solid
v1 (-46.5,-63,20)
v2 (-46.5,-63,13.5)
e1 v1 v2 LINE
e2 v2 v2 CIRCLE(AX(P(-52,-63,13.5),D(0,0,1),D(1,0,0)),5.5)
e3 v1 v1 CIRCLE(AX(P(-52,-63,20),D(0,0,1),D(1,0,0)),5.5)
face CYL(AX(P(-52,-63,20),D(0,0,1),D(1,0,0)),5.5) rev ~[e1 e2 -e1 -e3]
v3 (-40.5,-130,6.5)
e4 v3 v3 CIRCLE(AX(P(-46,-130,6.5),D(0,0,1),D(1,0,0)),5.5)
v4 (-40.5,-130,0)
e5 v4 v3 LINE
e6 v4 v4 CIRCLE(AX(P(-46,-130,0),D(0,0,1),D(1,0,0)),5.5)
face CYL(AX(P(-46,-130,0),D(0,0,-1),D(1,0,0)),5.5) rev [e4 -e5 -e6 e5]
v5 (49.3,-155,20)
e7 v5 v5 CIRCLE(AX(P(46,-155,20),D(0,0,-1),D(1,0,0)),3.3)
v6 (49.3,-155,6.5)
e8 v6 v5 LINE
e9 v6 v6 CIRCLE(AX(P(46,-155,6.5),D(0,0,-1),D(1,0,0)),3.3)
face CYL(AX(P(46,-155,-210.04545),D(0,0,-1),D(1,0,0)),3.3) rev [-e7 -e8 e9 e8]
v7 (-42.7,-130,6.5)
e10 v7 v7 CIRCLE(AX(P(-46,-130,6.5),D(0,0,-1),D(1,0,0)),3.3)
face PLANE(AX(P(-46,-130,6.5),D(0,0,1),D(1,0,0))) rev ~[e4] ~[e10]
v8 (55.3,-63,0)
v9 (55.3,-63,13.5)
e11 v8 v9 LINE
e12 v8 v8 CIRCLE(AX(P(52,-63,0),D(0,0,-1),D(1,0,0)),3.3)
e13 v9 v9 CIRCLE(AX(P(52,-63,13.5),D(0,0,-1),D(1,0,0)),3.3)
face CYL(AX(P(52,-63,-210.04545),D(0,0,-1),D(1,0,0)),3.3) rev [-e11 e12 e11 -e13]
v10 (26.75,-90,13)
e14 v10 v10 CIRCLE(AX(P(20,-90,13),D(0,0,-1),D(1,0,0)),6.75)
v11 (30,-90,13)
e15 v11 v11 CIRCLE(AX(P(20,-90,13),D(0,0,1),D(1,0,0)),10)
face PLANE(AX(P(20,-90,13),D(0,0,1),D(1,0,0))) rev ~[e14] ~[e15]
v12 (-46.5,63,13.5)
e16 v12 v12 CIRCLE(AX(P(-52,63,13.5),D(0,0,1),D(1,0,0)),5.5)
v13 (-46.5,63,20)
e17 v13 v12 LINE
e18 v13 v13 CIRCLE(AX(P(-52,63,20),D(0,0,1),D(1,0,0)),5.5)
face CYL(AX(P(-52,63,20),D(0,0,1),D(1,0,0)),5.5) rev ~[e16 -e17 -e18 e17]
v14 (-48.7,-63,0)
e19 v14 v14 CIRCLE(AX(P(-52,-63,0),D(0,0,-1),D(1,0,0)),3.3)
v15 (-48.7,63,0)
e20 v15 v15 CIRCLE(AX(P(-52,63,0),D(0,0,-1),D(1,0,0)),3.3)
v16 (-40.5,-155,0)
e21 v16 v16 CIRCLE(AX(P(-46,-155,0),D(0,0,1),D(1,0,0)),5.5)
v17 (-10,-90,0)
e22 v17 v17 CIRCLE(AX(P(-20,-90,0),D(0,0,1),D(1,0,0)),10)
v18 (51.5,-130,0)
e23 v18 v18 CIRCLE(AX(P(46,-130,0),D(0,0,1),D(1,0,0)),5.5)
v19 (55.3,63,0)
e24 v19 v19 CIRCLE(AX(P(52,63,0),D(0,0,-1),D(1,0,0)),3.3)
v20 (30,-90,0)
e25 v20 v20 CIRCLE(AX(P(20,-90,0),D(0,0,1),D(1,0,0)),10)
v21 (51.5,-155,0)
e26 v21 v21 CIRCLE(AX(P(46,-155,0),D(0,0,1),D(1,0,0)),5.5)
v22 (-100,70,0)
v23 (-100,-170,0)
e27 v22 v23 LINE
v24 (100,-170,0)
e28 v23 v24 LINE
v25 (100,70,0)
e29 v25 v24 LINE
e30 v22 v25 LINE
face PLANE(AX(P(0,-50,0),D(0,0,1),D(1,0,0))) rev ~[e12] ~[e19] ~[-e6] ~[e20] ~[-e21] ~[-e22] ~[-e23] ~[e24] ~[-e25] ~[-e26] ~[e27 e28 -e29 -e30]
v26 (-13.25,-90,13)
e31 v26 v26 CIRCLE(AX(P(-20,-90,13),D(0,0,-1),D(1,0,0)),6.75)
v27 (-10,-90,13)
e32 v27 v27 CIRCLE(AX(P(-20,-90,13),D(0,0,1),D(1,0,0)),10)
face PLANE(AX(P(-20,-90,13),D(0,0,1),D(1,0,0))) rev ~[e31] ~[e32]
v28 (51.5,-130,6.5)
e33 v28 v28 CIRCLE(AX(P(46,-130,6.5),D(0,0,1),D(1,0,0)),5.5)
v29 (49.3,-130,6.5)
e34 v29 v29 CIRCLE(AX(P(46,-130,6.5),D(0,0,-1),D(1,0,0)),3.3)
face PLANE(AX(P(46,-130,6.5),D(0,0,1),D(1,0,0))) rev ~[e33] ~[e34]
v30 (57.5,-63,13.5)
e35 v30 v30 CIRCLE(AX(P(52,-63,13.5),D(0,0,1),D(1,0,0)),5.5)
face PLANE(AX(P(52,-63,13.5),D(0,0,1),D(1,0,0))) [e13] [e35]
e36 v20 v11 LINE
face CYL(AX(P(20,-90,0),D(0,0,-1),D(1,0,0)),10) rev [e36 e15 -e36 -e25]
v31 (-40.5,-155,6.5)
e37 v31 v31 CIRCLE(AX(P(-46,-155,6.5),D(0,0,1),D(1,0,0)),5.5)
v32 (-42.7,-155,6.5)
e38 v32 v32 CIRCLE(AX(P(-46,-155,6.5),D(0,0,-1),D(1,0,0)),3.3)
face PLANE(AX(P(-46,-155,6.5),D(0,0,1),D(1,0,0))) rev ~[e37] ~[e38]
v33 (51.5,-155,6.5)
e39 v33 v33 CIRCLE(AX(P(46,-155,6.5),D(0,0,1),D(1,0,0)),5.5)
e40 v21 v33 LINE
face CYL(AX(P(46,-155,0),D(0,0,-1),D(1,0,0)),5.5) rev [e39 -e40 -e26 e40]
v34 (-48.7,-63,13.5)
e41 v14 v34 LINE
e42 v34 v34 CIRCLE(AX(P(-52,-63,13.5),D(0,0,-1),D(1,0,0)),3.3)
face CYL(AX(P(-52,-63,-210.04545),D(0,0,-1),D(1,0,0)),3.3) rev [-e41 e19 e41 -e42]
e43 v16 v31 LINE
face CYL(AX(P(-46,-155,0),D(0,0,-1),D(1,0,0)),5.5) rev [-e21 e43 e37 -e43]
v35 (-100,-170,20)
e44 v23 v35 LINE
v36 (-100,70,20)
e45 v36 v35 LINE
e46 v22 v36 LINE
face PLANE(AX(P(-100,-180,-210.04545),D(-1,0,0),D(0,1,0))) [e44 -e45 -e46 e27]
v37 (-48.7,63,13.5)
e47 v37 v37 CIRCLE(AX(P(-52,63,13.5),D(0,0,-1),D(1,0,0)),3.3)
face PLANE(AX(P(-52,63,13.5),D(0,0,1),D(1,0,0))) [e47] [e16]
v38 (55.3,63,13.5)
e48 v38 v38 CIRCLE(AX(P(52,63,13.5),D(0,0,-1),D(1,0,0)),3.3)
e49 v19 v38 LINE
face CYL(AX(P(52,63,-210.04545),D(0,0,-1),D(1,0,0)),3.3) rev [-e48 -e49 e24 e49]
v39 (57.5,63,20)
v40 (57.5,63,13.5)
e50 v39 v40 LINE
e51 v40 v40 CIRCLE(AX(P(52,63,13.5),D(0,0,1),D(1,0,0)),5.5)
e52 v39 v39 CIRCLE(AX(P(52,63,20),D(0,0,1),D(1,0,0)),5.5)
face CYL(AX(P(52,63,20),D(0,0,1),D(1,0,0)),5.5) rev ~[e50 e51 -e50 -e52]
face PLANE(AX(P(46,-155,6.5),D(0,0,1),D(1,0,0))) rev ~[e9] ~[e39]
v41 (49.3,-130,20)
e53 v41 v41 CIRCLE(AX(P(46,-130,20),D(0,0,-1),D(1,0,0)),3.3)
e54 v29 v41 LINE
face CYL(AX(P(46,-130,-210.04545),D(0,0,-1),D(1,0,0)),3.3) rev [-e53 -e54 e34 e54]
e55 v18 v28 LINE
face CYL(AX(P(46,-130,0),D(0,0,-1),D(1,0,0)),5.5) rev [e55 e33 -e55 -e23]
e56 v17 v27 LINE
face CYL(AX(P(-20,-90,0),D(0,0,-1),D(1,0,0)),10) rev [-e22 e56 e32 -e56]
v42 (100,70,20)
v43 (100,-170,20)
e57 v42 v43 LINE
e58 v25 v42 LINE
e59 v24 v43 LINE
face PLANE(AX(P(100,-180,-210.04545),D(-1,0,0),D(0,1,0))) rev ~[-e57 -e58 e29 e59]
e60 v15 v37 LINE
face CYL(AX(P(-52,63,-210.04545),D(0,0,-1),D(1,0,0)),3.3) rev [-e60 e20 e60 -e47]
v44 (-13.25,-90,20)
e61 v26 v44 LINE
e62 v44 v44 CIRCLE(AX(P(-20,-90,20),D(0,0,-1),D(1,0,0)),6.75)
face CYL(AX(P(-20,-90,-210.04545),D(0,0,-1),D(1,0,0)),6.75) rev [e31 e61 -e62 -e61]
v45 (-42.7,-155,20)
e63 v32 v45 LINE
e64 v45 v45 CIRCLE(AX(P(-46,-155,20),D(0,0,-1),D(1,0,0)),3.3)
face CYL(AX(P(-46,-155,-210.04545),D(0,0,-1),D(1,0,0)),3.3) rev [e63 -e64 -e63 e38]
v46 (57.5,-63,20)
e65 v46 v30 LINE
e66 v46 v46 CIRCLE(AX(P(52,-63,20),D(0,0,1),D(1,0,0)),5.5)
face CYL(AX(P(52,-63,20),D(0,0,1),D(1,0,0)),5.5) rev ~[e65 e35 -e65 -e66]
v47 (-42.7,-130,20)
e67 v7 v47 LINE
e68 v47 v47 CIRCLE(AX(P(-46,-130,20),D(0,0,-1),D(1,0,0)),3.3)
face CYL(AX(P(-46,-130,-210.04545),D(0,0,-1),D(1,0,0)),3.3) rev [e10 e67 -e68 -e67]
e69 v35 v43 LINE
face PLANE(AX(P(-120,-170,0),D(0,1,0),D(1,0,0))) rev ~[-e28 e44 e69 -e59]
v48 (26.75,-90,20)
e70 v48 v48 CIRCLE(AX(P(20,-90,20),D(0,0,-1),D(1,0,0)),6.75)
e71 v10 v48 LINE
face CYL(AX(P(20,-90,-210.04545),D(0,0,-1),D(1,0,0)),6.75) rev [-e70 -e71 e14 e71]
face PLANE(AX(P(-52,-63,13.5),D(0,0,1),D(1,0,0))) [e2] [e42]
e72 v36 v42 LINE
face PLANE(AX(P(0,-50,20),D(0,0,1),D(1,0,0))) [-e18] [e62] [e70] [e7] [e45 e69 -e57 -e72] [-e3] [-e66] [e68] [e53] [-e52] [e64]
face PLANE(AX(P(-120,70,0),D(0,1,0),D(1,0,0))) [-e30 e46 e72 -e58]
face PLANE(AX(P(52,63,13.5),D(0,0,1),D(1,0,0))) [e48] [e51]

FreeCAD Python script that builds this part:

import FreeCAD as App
import Part
import Sketcher

V = App.Vector
Q = App.Units.Quantity

doc = App.newDocument("Part")
body = doc.addObject("PartDesign::Body", "Body")

# Sketch on XY plane
sketch1 = body.newObject("Sketcher::SketchObject", "Sketch")
sketch1.AttachmentSupport = (doc.getObject("XY_Plane"), [""])
sketch1.MapMode = "FlatFace"
sketch1.addGeometry([
    Part.LineSegment(V(-120, 70, 0), V(-120, -170, 0)),
    Part.LineSegment(V(-120, -170, 0), V(120, -170, 0)),
    Part.LineSegment(V(120, -170, 0), V(120, 70, 0)),
    Part.LineSegment(V(120, 70, 0), V(-120, 70, 0)),
], False)
sketch1.addConstraint([
    Sketcher.Constraint("Coincident", 0, 2, 1, 1),
    Sketcher.Constraint("Coincident", 1, 2, 2, 1),
    Sketcher.Constraint("Coincident", 2, 2, 3, 1),
    Sketcher.Constraint("Coincident", 3, 2, 0, 1),
    Sketcher.Constraint("Vertical", 0),
    Sketcher.Constraint("Horizontal", 1),
    Sketcher.Constraint("Vertical", 2),
    Sketcher.Constraint("Horizontal", 3),
    Sketcher.Constraint("Equal", 3, 0),
    Sketcher.Constraint("DistanceX", 1, 1, 1, 2, Q("240 mm")),
    Sketcher.Constraint("DistanceX", 0, 2, -1, 1, Q("120 mm")),
    Sketcher.Constraint("DistanceY", 0, 2, -1, 1, Q("170 mm")),
])
pad1 = body.newObject("PartDesign::Pad", "Pad")
pad1.Profile = sketch1
pad1.Length = 20

# Sketch on XY plane
sketch2 = body.newObject("Sketcher::SketchObject", "Sketch001")
sketch2.AttachmentSupport = (doc.getObject("XY_Plane"), [""])
sketch2.MapMode = "FlatFace"
sketch2.addGeometry([
    Part.Circle(V(-52, -63, 0), V(0, 0, 1), 3.3),
    Part.Circle(V(-52, 63, 0), V(0, 0, 1), 3.3),
    Part.Circle(V(52, -63, 0), V(0, 0, 1), 3.3),
    Part.Circle(V(52, 63, 0), V(0, 0, 1), 3.3),
], False)
sketch2.addConstraint([
    Sketcher.Constraint("Equal", 0, 1),
    Sketcher.Constraint("Equal", 1, 2),
    Sketcher.Constraint("Equal", 2, 3),
    Sketcher.Constraint("Symmetric", 1, 3, 2, 3, -1, 1),
    Sketcher.Constraint("Symmetric", 0, 3, 3, 3, -1, 1),
    Sketcher.Constraint("Symmetric", 0, 3, 2, 3, -2),
    Sketcher.Constraint("Diameter", 0, Q("6.6 mm")),
    Sketcher.Constraint("DistanceX", 0, 3, -1, 1, Q("52 mm")),
    Sketcher.Constraint("DistanceY", 0, 3, -1, 1, Q("63 mm")),
])
pocket1 = body.newObject("PartDesign::Pocket", "Pocket")
pocket1.Profile = sketch2
pocket1.Type = "ThroughAll"
pocket1.Midplane = True

# Sketch on XY plane
sketch3 = body.newObject("Sketcher::SketchObject", "Sketch002")
sketch3.AttachmentSupport = (doc.getObject("XY_Plane"), [""])
sketch3.MapMode = "FlatFace"
sketch3.AttachmentOffset = App.Placement(V(0, 0, 20), App.Rotation())
sketch3.addGeometry([
    Part.Circle(V(-52, -63, 0), V(0, 0, 1), 5.5),
    Part.Circle(V(-52, 63, 0), V(0, 0, 1), 5.5),
    Part.Circle(V(52, -63, 0), V(0, 0, 1), 5.5),
    Part.Circle(V(52, 63, 0), V(0, 0, 1), 5.5),
], False)
sketch3.addConstraint([
    Sketcher.Constraint("Equal", 0, 1),
    Sketcher.Constraint("Equal", 1, 2),
    Sketcher.Constraint("Equal", 2, 3),
    Sketcher.Constraint("Symmetric", 1, 3, 2, 3, -1, 1),
    Sketcher.Constraint("Symmetric", 0, 3, 3, 3, -1, 1),
    Sketcher.Constraint("Symmetric", 0, 3, 2, 3, -2),
    Sketcher.Constraint("Diameter", 0, Q("11 mm")),
    Sketcher.Constraint("DistanceX", 0, 3, -1, 1, Q("52 mm")),
    Sketcher.Constraint("DistanceY", 0, 3, -1, 1, Q("63 mm")),
])
pocket2 = body.newObject("PartDesign::Pocket", "Pocket001")
pocket2.Profile = sketch3
pocket2.Length = 6.5

# Sketch on XY plane
sketch4 = body.newObject("Sketcher::SketchObject", "Sketch003")
sketch4.AttachmentSupport = (doc.getObject("XY_Plane"), [""])
sketch4.MapMode = "FlatFace"
sketch4.addGeometry([
    Part.Circle(V(-20, -90, 0), V(0, 0, 1), 6.75),
    Part.Circle(V(20, -90, 0), V(0, 0, 1), 6.75),
], False)
sketch4.addConstraint([
    Sketcher.Constraint("Equal", 0, 1),
    Sketcher.Constraint("Symmetric", 0, 3, 1, 3, -2),
    Sketcher.Constraint("Diameter", 0, Q("13.5 mm")),
    Sketcher.Constraint("DistanceX", 0, 3, -1, 1, Q("20 mm")),
    Sketcher.Constraint("DistanceY", 0, 3, -1, 1, Q("90 mm")),
])
pocket3 = body.newObject("PartDesign::Pocket", "Pocket002")
pocket3.Profile = sketch4
pocket3.Type = "ThroughAll"
pocket3.Midplane = True

# Sketch on XY plane
sketch5 = body.newObject("Sketcher::SketchObject", "Sketch004")
sketch5.AttachmentSupport = (doc.getObject("XY_Plane"), [""])
sketch5.MapMode = "FlatFace"
sketch5.addGeometry([
    Part.Circle(V(-20, -90, 0), V(0, 0, 1), 10),
    Part.Circle(V(20, -90, 0), V(0, 0, 1), 10),
], False)
sketch5.addConstraint([
    Sketcher.Constraint("Equal", 0, 1),
    Sketcher.Constraint("Symmetric", 0, 3, 1, 3, -2),
    Sketcher.Constraint("Diameter", 0, Q("20 mm")),
    Sketcher.Constraint("DistanceX", 0, 3, -1, 1, Q("20 mm")),
    Sketcher.Constraint("DistanceY", 0, 3, -1, 1, Q("90 mm")),
])
pocket4 = body.newObject("PartDesign::Pocket", "Pocket003")
pocket4.Profile = sketch5
pocket4.Length = 13
pocket4.Reversed = True

# Sketch on XY plane
sketch6 = body.newObject("Sketcher::SketchObject", "Sketch005")
sketch6.AttachmentSupport = (doc.getObject("XY_Plane"), [""])
sketch6.MapMode = "FlatFace"
sketch6.addGeometry([
    Part.Circle(V(-46, -130, 0), V(0, 0, 1), 3.3),
    Part.Circle(V(-46, -155, 0), V(0, 0, 1), 3.3),
    Part.Circle(V(46, -130, 0), V(0, 0, 1), 3.3),
    Part.Circle(V(46, -155, 0), V(0, 0, 1), 3.3),
], False)
sketch6.addConstraint([
    Sketcher.Constraint("Equal", 0, 1),
    Sketcher.Constraint("Equal", 1, 2),
    Sketcher.Constraint("Equal", 2, 3),
    Sketcher.Constraint("Symmetric", 0, 3, 2, 3, -2),
    Sketcher.Constraint("Symmetric", 1, 3, 3, 3, -2),
    Sketcher.Constraint("Vertical", 0, 3, 1, 3),
    Sketcher.Constraint("Diameter", 0, Q("6.6 mm")),
    Sketcher.Constraint("DistanceX", 0, 3, -1, 1, Q("46 mm")),
    Sketcher.Constraint("DistanceY", 0, 3, -1, 1, Q("130 mm")),
    Sketcher.Constraint("DistanceY", 1, 3, -1, 1, Q("155 mm")),
])
pocket5 = body.newObject("PartDesign::Pocket", "Pocket004")
pocket5.Profile = sketch6
pocket5.Type = "ThroughAll"
pocket5.Midplane = True

# Sketch on XY plane
sketch7 = body.newObject("Sketcher::SketchObject", "Sketch006")
sketch7.AttachmentSupport = (doc.getObject("XY_Plane"), [""])
sketch7.MapMode = "FlatFace"
sketch7.addGeometry([
    Part.Circle(V(-46, -130, 0), V(0, 0, 1), 5.5),
    Part.Circle(V(-46, -155, 0), V(0, 0, 1), 5.5),
    Part.Circle(V(46, -130, 0), V(0, 0, 1), 5.5),
    Part.Circle(V(46, -155, 0), V(0, 0, 1), 5.5),
], False)
sketch7.addConstraint([
    Sketcher.Constraint("Equal", 0, 1),
    Sketcher.Constraint("Equal", 1, 2),
    Sketcher.Constraint("Equal", 2, 3),
    Sketcher.Constraint("Symmetric", 0, 3, 2, 3, -2),
    Sketcher.Constraint("Symmetric", 1, 3, 3, 3, -2),
    Sketcher.Constraint("Vertical", 0, 3, 1, 3),
    Sketcher.Constraint("Diameter", 0, Q("11 mm")),
    Sketcher.Constraint("DistanceX", 0, 3, -1, 1, Q("46 mm")),
    Sketcher.Constraint("DistanceY", 0, 3, -1, 1, Q("130 mm")),
    Sketcher.Constraint("DistanceY", 1, 3, -1, 1, Q("155 mm")),
])
pocket6 = body.newObject("PartDesign::Pocket", "Pocket005")
pocket6.Profile = sketch7
pocket6.Length = 6.5
pocket6.Reversed = True

# Sketch on XY plane
sketch8 = body.newObject("Sketcher::SketchObject", "Sketch007")
sketch8.AttachmentSupport = (doc.getObject("XY_Plane"), [""])
sketch8.MapMode = "FlatFace"
sketch8.addGeometry([
    Part.LineSegment(V(-130, 80, 0), V(-130, -180, 0)),  # 0
    Part.LineSegment(V(-130, -180, 0), V(-100, -180, 0)),  # 1
    Part.LineSegment(V(-100, -180, 0), V(-100, 80, 0)),  # 2
    Part.LineSegment(V(-100, 80, 0), V(-130, 80, 0)),  # 3
    Part.LineSegment(V(100, 80, 0), V(100, -180, 0)),  # 4
    Part.LineSegment(V(100, -180, 0), V(130, -180, 0)),  # 5
    Part.LineSegment(V(130, -180, 0), V(130, 80, 0)),  # 6
    Part.LineSegment(V(130, 80, 0), V(100, 80, 0)),  # 7
], False)
sketch8.addConstraint([
    Sketcher.Constraint("Coincident", 0, 2, 1, 1),
    Sketcher.Constraint("Coincident", 1, 2, 2, 1),
    Sketcher.Constraint("Coincident", 2, 2, 3, 1),
    Sketcher.Constraint("Coincident", 3, 2, 0, 1),
    Sketcher.Constraint("Coincident", 4, 2, 5, 1),
    Sketcher.Constraint("Coincident", 5, 2, 6, 1),
    Sketcher.Constraint("Coincident", 6, 2, 7, 1),
    Sketcher.Constraint("Coincident", 7, 2, 4, 1),
    Sketcher.Constraint("Vertical", 0),
    Sketcher.Constraint("Horizontal", 1),
    Sketcher.Constraint("Vertical", 2),
    Sketcher.Constraint("Horizontal", 3),
    Sketcher.Constraint("Vertical", 4),
    Sketcher.Constraint("Horizontal", 5),
    Sketcher.Constraint("Vertical", 6),
    Sketcher.Constraint("Horizontal", 7),
    Sketcher.Constraint("Symmetric", 1, 2, 4, 2, -2),
    Sketcher.Constraint("Symmetric", 3, 2, 6, 2, -2),
    Sketcher.Constraint("DistanceX", 1, 1, 1, 2, Q("30 mm")),
    Sketcher.Constraint("DistanceY", 0, 2, 0, 1, Q("260 mm")),
    Sketcher.Constraint("DistanceX", 0, 2, -1, 1, Q("130 mm")),
    Sketcher.Constraint("DistanceY", 0, 2, -1, 1, Q("180 mm")),
])
pocket7 = body.newObject("PartDesign::Pocket", "Pocket006")
pocket7.Profile = sketch8
pocket7.Type = "ThroughAll"
pocket7.Midplane = True

doc.recompute()
